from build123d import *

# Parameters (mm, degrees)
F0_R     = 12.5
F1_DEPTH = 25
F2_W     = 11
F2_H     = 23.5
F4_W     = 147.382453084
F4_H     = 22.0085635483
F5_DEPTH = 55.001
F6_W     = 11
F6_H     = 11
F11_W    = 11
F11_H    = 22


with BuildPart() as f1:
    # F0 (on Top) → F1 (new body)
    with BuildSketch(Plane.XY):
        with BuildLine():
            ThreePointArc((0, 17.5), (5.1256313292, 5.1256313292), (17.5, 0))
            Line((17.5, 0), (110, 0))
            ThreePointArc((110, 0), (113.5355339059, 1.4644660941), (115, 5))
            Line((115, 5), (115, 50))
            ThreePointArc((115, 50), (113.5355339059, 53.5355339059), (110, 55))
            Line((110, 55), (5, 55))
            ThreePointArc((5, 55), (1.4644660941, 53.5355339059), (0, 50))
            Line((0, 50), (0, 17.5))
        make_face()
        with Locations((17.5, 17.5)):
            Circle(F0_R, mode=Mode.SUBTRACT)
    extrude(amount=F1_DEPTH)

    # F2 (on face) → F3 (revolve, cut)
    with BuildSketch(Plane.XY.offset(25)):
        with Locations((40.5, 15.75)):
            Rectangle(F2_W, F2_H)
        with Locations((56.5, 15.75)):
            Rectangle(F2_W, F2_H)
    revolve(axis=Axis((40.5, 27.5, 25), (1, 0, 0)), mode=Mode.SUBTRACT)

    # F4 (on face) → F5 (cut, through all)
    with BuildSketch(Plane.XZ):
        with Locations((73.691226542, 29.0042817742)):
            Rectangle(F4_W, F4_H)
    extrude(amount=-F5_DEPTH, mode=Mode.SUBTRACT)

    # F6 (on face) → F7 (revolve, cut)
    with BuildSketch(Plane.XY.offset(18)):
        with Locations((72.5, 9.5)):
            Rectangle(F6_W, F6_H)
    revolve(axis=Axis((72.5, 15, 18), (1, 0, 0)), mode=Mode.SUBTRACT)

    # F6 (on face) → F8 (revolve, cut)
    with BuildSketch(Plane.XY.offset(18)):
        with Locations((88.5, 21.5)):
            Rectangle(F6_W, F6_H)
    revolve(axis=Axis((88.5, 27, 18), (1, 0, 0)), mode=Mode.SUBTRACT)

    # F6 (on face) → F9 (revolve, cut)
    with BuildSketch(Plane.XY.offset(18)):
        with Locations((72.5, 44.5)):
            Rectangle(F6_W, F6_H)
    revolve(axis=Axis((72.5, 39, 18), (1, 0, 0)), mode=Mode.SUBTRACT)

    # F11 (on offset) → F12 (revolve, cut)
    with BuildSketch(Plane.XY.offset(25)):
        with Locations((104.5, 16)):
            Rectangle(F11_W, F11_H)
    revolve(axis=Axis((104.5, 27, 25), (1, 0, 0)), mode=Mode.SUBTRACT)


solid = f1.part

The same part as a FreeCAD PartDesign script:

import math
import FreeCAD as App
import Part
import Sketcher

doc = App.newDocument("Part")
body = doc.addObject("PartDesign::Body", "Body")

# Sketch on XY plane
sketch1 = body.newObject("Sketcher::SketchObject", "Sketch")
sketch1.AttachmentSupport = (doc.getObject("XY_Plane"), [""])
sketch1.MapMode = "FlatFace"
sketch1.addGeometry(Part.ArcOfCircle(Part.Circle(App.Vector(17.5, 17.5, 0), App.Vector(0, 0, 1), 17.5), math.radians(180), math.radians(270)), False)
sketch1.addGeometry(Part.LineSegment(App.Vector(17.5, 0, 0), App.Vector(110, 0, 0)), False)
sketch1.addGeometry(Part.ArcOfCircle(Part.Circle(App.Vector(110, 5, 0), App.Vector(0, 0, 1), 5), math.radians(-90), math.radians(0)), False)
sketch1.addGeometry(Part.LineSegment(App.Vector(115, 5, 0), App.Vector(115, 50, 0)), False)
sketch1.addGeometry(Part.ArcOfCircle(Part.Circle(App.Vector(110, 50, 0), App.Vector(0, 0, 1), 5), math.radians(0), math.radians(90)), False)
sketch1.addGeometry(Part.LineSegment(App.Vector(110, 55, 0), App.Vector(5, 55, 0)), False)
sketch1.addGeometry(Part.ArcOfCircle(Part.Circle(App.Vector(5, 50, 0), App.Vector(0, 0, 1), 5), math.radians(90), math.radians(180)), False)
sketch1.addGeometry(Part.LineSegment(App.Vector(0, 50, 0), App.Vector(0, 17.5, 0)), False)
sketch1.addGeometry(Part.Circle(App.Vector(17.5, 17.5, 0), App.Vector(0, 0, 1), 12.5), False)
sketch1.addConstraint(Sketcher.Constraint("Tangent", 0, 2, 1, 1))
sketch1.addConstraint(Sketcher.Constraint("Tangent", 1, 2, 2, 1))
sketch1.addConstraint(Sketcher.Constraint("Tangent", 2, 2, 3, 1))
sketch1.addConstraint(Sketcher.Constraint("Tangent", 3, 2, 4, 1))
sketch1.addConstraint(Sketcher.Constraint("Tangent", 4, 2, 5, 1))
sketch1.addConstraint(Sketcher.Constraint("Tangent", 5, 2, 6, 1))
sketch1.addConstraint(Sketcher.Constraint("Tangent", 6, 2, 7, 1))
sketch1.addConstraint(Sketcher.Constraint("Tangent", 7, 2, 0, 1))
sketch1.addConstraint(Sketcher.Constraint("Horizontal", 1))
sketch1.addConstraint(Sketcher.Constraint("Vertical", 3))
sketch1.addConstraint(Sketcher.Constraint("Horizontal", 5))
sketch1.addConstraint(Sketcher.Constraint("Vertical", 7))
sketch1.addConstraint(Sketcher.Constraint("Coincident", 8, 3, 0, 3))
sketch1.addConstraint(Sketcher.Constraint("Equal", 2, 4))
sketch1.addConstraint(Sketcher.Constraint("Equal", 4, 6))
sketch1.addConstraint(Sketcher.Constraint("PointOnObject", 0, 2, -1))
sketch1.addConstraint(Sketcher.Constraint("PointOnObject", 6, 2, -2))
sketch1.addConstraint(Sketcher.Constraint("Diameter", 8, 25.0))
sketch1.addConstraint(Sketcher.Constraint("Radius", 2, 5.0))
sketch1.addConstraint(Sketcher.Constraint("Radius", 0, 17.5))
sketch1.addConstraint(Sketcher.Constraint("DistanceX", 5, 2, 5, 1, 105.0))
sketch1.addConstraint(Sketcher.Constraint("DistanceY", 3, 1, 3, 2, 45.0))
pad1 = body.newObject("PartDesign::Pad", "Pad")
pad1.Profile = sketch1
pad1.Length = 25

# Sketch on XY plane
sketch2 = body.newObject("Sketcher::SketchObject", "Sketch001")
sketch2.AttachmentSupport = (doc.getObject("XY_Plane"), [""])
sketch2.MapMode = "FlatFace"
sketch2.AttachmentOffset = App.Placement(App.Vector(0, 0, 25), App.Rotation())
sketch2.addGeometry(Part.LineSegment(App.Vector(35, 27.5, 0), App.Vector(35, 4, 0)), False)
sketch2.addGeometry(Part.LineSegment(App.Vector(35, 4, 0), App.Vector(46, 4, 0)), False)
sketch2.addGeometry(Part.LineSegment(App.Vector(46, 4, 0), App.Vector(46, 27.5, 0)), False)
sketch2.addGeometry(Part.LineSegment(App.Vector(46, 27.5, 0), App.Vector(35, 27.5, 0)), False)
sketch2.addGeometry(Part.LineSegment(App.Vector(51, 27.5, 0), App.Vector(51, 4, 0)), False)
sketch2.addGeometry(Part.LineSegment(App.Vector(51, 4, 0), App.Vector(62, 4, 0)), False)
sketch2.addGeometry(Part.LineSegment(App.Vector(62, 4, 0), App.Vector(62, 27.5, 0)), False)
sketch2.addGeometry(Part.LineSegment(App.Vector(62, 27.5, 0), App.Vector(51, 27.5, 0)), False)
sketch2.addGeometry(Part.LineSegment(App.Vector(35, 27.5, 0), App.Vector(62, 27.5, 0)), True)  # axis
sketch2.addConstraint(Sketcher.Constraint("Coincident", 0, 2, 1, 1))
sketch2.addConstraint(Sketcher.Constraint("Coincident", 1, 2, 2, 1))
sketch2.addConstraint(Sketcher.Constraint("Coincident", 2, 2, 3, 1))
sketch2.addConstraint(Sketcher.Constraint("Coincident", 3, 2, 0, 1))
sketch2.addConstraint(Sketcher.Constraint("Coincident", 4, 2, 5, 1))
sketch2.addConstraint(Sketcher.Constraint("Coincident", 5, 2, 6, 1))
sketch2.addConstraint(Sketcher.Constraint("Coincident", 6, 2, 7, 1))
sketch2.addConstraint(Sketcher.Constraint("Coincident", 7, 2, 4, 1))
sketch2.addConstraint(Sketcher.Constraint("Vertical", 0))
sketch2.addConstraint(Sketcher.Constraint("Horizontal", 1))
sketch2.addConstraint(Sketcher.Constraint("Vertical", 2))
sketch2.addConstraint(Sketcher.Constraint("Horizontal", 3))
sketch2.addConstraint(Sketcher.Constraint("Vertical", 4))
sketch2.addConstraint(Sketcher.Constraint("Horizontal", 5))
sketch2.addConstraint(Sketcher.Constraint("Vertical", 6))
sketch2.addConstraint(Sketcher.Constraint("Horizontal", 7))
sketch2.addConstraint(Sketcher.Constraint("Horizontal", 8))
sketch2.addConstraint(Sketcher.Constraint("Coincident", 8, 1, 3, 2))
sketch2.addConstraint(Sketcher.Constraint("Coincident", 8, 2, 6, 2))
sketch2.addConstraint(Sketcher.Constraint("Horizontal", 1, 2, 4, 2))
sketch2.addConstraint(Sketcher.Constraint("Equal", 3, 5))
sketch2.addConstraint(Sketcher.Constraint("DistanceX", 1, 1, 1, 2, 11.0))
sketch2.addConstraint(Sketcher.Constraint("DistanceX", 8, 1, 8, 2, 27.0))
sketch2.addConstraint(Sketcher.Constraint("DistanceY", 0, 2, 0, 1, 23.5))
sketch2.addConstraint(Sketcher.Constraint("DistanceX", -1, 1, 0, 2, 35.0))
sketch2.addConstraint(Sketcher.Constraint("DistanceY", -1, 1, 0, 2, 4.0))
groove = body.newObject("PartDesign::Groove", "Groove")
groove.Profile = sketch2
groove.ReferenceAxis = (sketch2, ["Axis0"])
groove.Angle = 360

# Sketch on XZ plane
sketch3 = body.newObject("Sketcher::SketchObject", "Sketch002")
sketch3.AttachmentSupport = (doc.getObject("XZ_Plane"), [""])
sketch3.MapMode = "FlatFace"
sketch3.addGeometry(Part.LineSegment(App.Vector(0, 40.008564, 0), App.Vector(0, 18, 0)), False)
sketch3.addGeometry(Part.LineSegment(App.Vector(0, 18, 0), App.Vector(147.382453, 18, 0)), False)
sketch3.addGeometry(Part.LineSegment(App.Vector(147.382453, 18, 0), App.Vector(147.382453, 40.008564, 0)), False)
sketch3.addGeometry(Part.LineSegment(App.Vector(147.382453, 40.008564, 0), App.Vector(0, 40.008564, 0)), False)
sketch3.addConstraint(Sketcher.Constraint("Coincident", 0, 2, 1, 1))
sketch3.addConstraint(Sketcher.Constraint("Coincident", 1, 2, 2, 1))
sketch3.addConstraint(Sketcher.Constraint("Coincident", 2, 2, 3, 1))
sketch3.addConstraint(Sketcher.Constraint("Coincident", 3, 2, 0, 1))
sketch3.addConstraint(Sketcher.Constraint("Vertical", 0))
sketch3.addConstraint(Sketcher.Constraint("Horizontal", 1))
sketch3.addConstraint(Sketcher.Constraint("Vertical", 2))
sketch3.addConstraint(Sketcher.Constraint("Horizontal", 3))
sketch3.addConstraint(Sketcher.Constraint("PointOnObject", 0, 2, -2))
sketch3.addConstraint(Sketcher.Constraint("DistanceY", -1, 1, 0, 2, 18.0))
sketch3.addConstraint(Sketcher.Constraint("DistanceX", 1, 1, 1, 2, 147.382453))
sketch3.addConstraint(Sketcher.Constraint("DistanceY", 0, 2, 0, 1, 22.008564))
pocket1 = body.newObject("PartDesign::Pocket", "Pocket")
pocket1.Profile = sketch3
pocket1.Type = "ThroughAll"

# Sketch on XY plane
sketch4 = body.newObject("Sketcher::SketchObject", "Sketch003")
sketch4.AttachmentSupport = (doc.getObject("XY_Plane"), [""])
sketch4.MapMode = "FlatFace"
sketch4.AttachmentOffset = App.Placement(App.Vector(0, 0, 18), App.Rotation())
sketch4.addGeometry(Part.LineSegment(App.Vector(67, 15, 0), App.Vector(67, 4, 0)), False)
sketch4.addGeometry(Part.LineSegment(App.Vector(67, 4, 0), App.Vector(78, 4, 0)), False)
sketch4.addGeometry(Part.LineSegment(App.Vector(78, 4, 0), App.Vector(78, 15, 0)), False)
sketch4.addGeometry(Part.LineSegment(App.Vector(78, 15, 0), App.Vector(67, 15, 0)), False)
sketch4.addGeometry(Part.LineSegment(App.Vector(67, 15, 0), App.Vector(78, 15, 0)), True)  # axis
sketch4.addConstraint(Sketcher.Constraint("Coincident", 0, 2, 1, 1))
sketch4.addConstraint(Sketcher.Constraint("Coincident", 1, 2, 2, 1))
sketch4.addConstraint(Sketcher.Constraint("Coincident", 2, 2, 3, 1))
sketch4.addConstraint(Sketcher.Constraint("Coincident", 3, 2, 0, 1))
sketch4.addConstraint(Sketcher.Constraint("Vertical", 0))
sketch4.addConstraint(Sketcher.Constraint("Horizontal", 1))
sketch4.addConstraint(Sketcher.Constraint("Vertical", 2))
sketch4.addConstraint(Sketcher.Constraint("Horizontal", 3))
sketch4.addConstraint(Sketcher.Constraint("Horizontal", 4))
sketch4.addConstraint(Sketcher.Constraint("Coincident", 4, 1, 3, 2))
sketch4.addConstraint(Sketcher.Constraint("Vertical", 1, 2, 4, 2))
sketch4.addConstraint(Sketcher.Constraint("Equal", 4, 0))
sketch4.addConstraint(Sketcher.Constraint("DistanceX", 1, 1, 1, 2, 11.0))
sketch4.addConstraint(Sketcher.Constraint("DistanceX", -1, 1, 0, 2, 67.0))
sketch4.addConstraint(Sketcher.Constraint("DistanceY", -1, 1, 0, 2, 4.0))
groove2 = body.newObject("PartDesign::Groove", "Groove001")
groove2.Profile = sketch4
groove2.ReferenceAxis = (sketch4, ["Axis0"])
groove2.Angle = 360

# Sketch on XY plane
sketch5 = body.newObject("Sketcher::SketchObject", "Sketch004")
sketch5.AttachmentSupport = (doc.getObject("XY_Plane"), [""])
sketch5.MapMode = "FlatFace"
sketch5.AttachmentOffset = App.Placement(App.Vector(0, 0, 18), App.Rotation())
sketch5.addGeometry(Part.LineSegment(App.Vector(83, 27, 0), App.Vector(83, 16, 0)), False)
sketch5.addGeometry(Part.LineSegment(App.Vector(83, 16, 0), App.Vector(94, 16, 0)), False)
sketch5.addGeometry(Part.LineSegment(App.Vector(94, 16, 0), App.Vector(94, 27, 0)), False)
sketch5.addGeometry(Part.LineSegment(App.Vector(94, 27, 0), App.Vector(83, 27, 0)), False)
sketch5.addGeometry(Part.LineSegment(App.Vector(83, 27, 0), App.Vector(94, 27, 0)), True)  # axis
sketch5.addConstraint(Sketcher.Constraint("Coincident", 0, 2, 1, 1))
sketch5.addConstraint(Sketcher.Constraint("Coincident", 1, 2, 2, 1))
sketch5.addConstraint(Sketcher.Constraint("Coincident", 2, 2, 3, 1))
sketch5.addConstraint(Sketcher.Constraint("Coincident", 3, 2, 0, 1))
sketch5.addConstraint(Sketcher.Constraint("Vertical", 0))
sketch5.addConstraint(Sketcher.Constraint("Horizontal", 1))
sketch5.addConstraint(Sketcher.Constraint("Vertical", 2))
sketch5.addConstraint(Sketcher.Constraint("Horizontal", 3))
sketch5.addConstraint(Sketcher.Constraint("Horizontal", 4))
sketch5.addConstraint(Sketcher.Constraint("Coincident", 4, 1, 3, 2))
sketch5.addConstraint(Sketcher.Constraint("Vertical", 1, 2, 4, 2))
sketch5.addConstraint(Sketcher.Constraint("Equal", 4, 0))
sketch5.addConstraint(Sketcher.Constraint("DistanceX", 1, 1, 1, 2, 11.0))
sketch5.addConstraint(Sketcher.Constraint("DistanceX", -1, 1, 0, 2, 83.0))
sketch5.addConstraint(Sketcher.Constraint("DistanceY", -1, 1, 0, 2, 16.0))
groove3 = body.newObject("PartDesign::Groove", "Groove002")
groove3.Profile = sketch5
groove3.ReferenceAxis = (sketch5, ["Axis0"])
groove3.Angle = 360

# Sketch on XY plane
sketch6 = body.newObject("Sketcher::SketchObject", "Sketch005")
sketch6.AttachmentSupport = (doc.getObject("XY_Plane"), [""])
sketch6.MapMode = "FlatFace"
sketch6.AttachmentOffset = App.Placement(App.Vector(0, 0, 18), App.Rotation())
sketch6.addGeometry(Part.LineSegment(App.Vector(67, 50, 0), App.Vector(67, 39, 0)), False)
sketch6.addGeometry(Part.LineSegment(App.Vector(67, 39, 0), App.Vector(78, 39, 0)), False)
sketch6.addGeometry(Part.LineSegment(App.Vector(78, 39, 0), App.Vector(78, 50, 0)), False)
sketch6.addGeometry(Part.LineSegment(App.Vector(78, 50, 0), App.Vector(67, 50, 0)), False)
sketch6.addGeometry(Part.LineSegment(App.Vector(67, 39, 0), App.Vector(78, 39, 0)), True)  # axis
sketch6.addConstraint(Sketcher.Constraint("Coincident", 0, 2, 1, 1))
sketch6.addConstraint(Sketcher.Constraint("Coincident", 1, 2, 2, 1))
sketch6.addConstraint(Sketcher.Constraint("Coincident", 2, 2, 3, 1))
sketch6.addConstraint(Sketcher.Constraint("Coincident", 3, 2, 0, 1))
sketch6.addConstraint(Sketcher.Constraint("Vertical", 0))
sketch6.addConstraint(Sketcher.Constraint("Horizontal", 1))
sketch6.addConstraint(Sketcher.Constraint("Vertical", 2))
sketch6.addConstraint(Sketcher.Constraint("Horizontal", 3))
sketch6.addConstraint(Sketcher.Constraint("Horizontal", 4))
sketch6.addConstraint(Sketcher.Constraint("Coincident", 4, 1, 0, 2))
sketch6.addConstraint(Sketcher.Constraint("Vertical", 2, 2, 4, 2))
sketch6.addConstraint(Sketcher.Constraint("Equal", 4, 0))
sketch6.addConstraint(Sketcher.Constraint("DistanceX", 1, 1, 1, 2, 11.0))
sketch6.addConstraint(Sketcher.Constraint("DistanceX", -1, 1, 0, 2, 67.0))
sketch6.addConstraint(Sketcher.Constraint("DistanceY", -1, 1, 0, 2, 39.0))
groove4 = body.newObject("PartDesign::Groove", "Groove003")
groove4.Profile = sketch6
groove4.ReferenceAxis = (sketch6, ["Axis0"])
groove4.Angle = 360

# Sketch on XY plane
sketch7 = body.newObject("Sketcher::SketchObject", "Sketch006")
sketch7.AttachmentSupport = (doc.getObject("XY_Plane"), [""])
sketch7.MapMode = "FlatFace"
sketch7.AttachmentOffset = App.Placement(App.Vector(0, 0, 25), App.Rotation())
sketch7.addGeometry(Part.LineSegment(App.Vector(99, 27, 0), App.Vector(99, 5, 0)), False)
sketch7.addGeometry(Part.LineSegment(App.Vector(99, 5, 0), App.Vector(110, 5, 0)), False)
sketch7.addGeometry(Part.LineSegment(App.Vector(110, 5, 0), App.Vector(110, 27, 0)), False)
sketch7.addGeometry(Part.LineSegment(App.Vector(110, 27, 0), App.Vector(99, 27, 0)), False)
sketch7.addGeometry(Part.LineSegment(App.Vector(99, 27, 0), App.Vector(110, 27, 0)), True)  # axis
sketch7.addConstraint(Sketcher.Constraint("Coincident", 0, 2, 1, 1))
sketch7.addConstraint(Sketcher.Constraint("Coincident", 1, 2, 2, 1))
sketch7.addConstraint(Sketcher.Constraint("Coincident", 2, 2, 3, 1))
sketch7.addConstraint(Sketcher.Constraint("Coincident", 3, 2, 0, 1))
sketch7.addConstraint(Sketcher.Constraint("Vertical", 0))
sketch7.addConstraint(Sketcher.Constraint("Horizontal", 1))
sketch7.addConstraint(Sketcher.Constraint("Vertical", 2))
sketch7.addConstraint(Sketcher.Constraint("Horizontal", 3))
sketch7.addConstraint(Sketcher.Constraint("Horizontal", 4))
sketch7.addConstraint(Sketcher.Constraint("Coincident", 4, 1, 3, 2))
sketch7.addConstraint(Sketcher.Constraint("Vertical", 1, 2, 4, 2))
sketch7.addConstraint(Sketcher.Constraint("DistanceX", 1, 1, 1, 2, 11.0))
sketch7.addConstraint(Sketcher.Constraint("DistanceY", 0, 2, 0, 1, 22.0))
sketch7.addConstraint(Sketcher.Constraint("DistanceX", -1, 1, 0, 2, 99.0))
sketch7.addConstraint(Sketcher.Constraint("DistanceY", -1, 1, 0, 2, 5.0))
groove5 = body.newObject("PartDesign::Groove", "Groove004")
groove5.Profile = sketch7
groove5.ReferenceAxis = (sketch7, ["Axis0"])
groove5.Angle = 360

doc.recompute()
